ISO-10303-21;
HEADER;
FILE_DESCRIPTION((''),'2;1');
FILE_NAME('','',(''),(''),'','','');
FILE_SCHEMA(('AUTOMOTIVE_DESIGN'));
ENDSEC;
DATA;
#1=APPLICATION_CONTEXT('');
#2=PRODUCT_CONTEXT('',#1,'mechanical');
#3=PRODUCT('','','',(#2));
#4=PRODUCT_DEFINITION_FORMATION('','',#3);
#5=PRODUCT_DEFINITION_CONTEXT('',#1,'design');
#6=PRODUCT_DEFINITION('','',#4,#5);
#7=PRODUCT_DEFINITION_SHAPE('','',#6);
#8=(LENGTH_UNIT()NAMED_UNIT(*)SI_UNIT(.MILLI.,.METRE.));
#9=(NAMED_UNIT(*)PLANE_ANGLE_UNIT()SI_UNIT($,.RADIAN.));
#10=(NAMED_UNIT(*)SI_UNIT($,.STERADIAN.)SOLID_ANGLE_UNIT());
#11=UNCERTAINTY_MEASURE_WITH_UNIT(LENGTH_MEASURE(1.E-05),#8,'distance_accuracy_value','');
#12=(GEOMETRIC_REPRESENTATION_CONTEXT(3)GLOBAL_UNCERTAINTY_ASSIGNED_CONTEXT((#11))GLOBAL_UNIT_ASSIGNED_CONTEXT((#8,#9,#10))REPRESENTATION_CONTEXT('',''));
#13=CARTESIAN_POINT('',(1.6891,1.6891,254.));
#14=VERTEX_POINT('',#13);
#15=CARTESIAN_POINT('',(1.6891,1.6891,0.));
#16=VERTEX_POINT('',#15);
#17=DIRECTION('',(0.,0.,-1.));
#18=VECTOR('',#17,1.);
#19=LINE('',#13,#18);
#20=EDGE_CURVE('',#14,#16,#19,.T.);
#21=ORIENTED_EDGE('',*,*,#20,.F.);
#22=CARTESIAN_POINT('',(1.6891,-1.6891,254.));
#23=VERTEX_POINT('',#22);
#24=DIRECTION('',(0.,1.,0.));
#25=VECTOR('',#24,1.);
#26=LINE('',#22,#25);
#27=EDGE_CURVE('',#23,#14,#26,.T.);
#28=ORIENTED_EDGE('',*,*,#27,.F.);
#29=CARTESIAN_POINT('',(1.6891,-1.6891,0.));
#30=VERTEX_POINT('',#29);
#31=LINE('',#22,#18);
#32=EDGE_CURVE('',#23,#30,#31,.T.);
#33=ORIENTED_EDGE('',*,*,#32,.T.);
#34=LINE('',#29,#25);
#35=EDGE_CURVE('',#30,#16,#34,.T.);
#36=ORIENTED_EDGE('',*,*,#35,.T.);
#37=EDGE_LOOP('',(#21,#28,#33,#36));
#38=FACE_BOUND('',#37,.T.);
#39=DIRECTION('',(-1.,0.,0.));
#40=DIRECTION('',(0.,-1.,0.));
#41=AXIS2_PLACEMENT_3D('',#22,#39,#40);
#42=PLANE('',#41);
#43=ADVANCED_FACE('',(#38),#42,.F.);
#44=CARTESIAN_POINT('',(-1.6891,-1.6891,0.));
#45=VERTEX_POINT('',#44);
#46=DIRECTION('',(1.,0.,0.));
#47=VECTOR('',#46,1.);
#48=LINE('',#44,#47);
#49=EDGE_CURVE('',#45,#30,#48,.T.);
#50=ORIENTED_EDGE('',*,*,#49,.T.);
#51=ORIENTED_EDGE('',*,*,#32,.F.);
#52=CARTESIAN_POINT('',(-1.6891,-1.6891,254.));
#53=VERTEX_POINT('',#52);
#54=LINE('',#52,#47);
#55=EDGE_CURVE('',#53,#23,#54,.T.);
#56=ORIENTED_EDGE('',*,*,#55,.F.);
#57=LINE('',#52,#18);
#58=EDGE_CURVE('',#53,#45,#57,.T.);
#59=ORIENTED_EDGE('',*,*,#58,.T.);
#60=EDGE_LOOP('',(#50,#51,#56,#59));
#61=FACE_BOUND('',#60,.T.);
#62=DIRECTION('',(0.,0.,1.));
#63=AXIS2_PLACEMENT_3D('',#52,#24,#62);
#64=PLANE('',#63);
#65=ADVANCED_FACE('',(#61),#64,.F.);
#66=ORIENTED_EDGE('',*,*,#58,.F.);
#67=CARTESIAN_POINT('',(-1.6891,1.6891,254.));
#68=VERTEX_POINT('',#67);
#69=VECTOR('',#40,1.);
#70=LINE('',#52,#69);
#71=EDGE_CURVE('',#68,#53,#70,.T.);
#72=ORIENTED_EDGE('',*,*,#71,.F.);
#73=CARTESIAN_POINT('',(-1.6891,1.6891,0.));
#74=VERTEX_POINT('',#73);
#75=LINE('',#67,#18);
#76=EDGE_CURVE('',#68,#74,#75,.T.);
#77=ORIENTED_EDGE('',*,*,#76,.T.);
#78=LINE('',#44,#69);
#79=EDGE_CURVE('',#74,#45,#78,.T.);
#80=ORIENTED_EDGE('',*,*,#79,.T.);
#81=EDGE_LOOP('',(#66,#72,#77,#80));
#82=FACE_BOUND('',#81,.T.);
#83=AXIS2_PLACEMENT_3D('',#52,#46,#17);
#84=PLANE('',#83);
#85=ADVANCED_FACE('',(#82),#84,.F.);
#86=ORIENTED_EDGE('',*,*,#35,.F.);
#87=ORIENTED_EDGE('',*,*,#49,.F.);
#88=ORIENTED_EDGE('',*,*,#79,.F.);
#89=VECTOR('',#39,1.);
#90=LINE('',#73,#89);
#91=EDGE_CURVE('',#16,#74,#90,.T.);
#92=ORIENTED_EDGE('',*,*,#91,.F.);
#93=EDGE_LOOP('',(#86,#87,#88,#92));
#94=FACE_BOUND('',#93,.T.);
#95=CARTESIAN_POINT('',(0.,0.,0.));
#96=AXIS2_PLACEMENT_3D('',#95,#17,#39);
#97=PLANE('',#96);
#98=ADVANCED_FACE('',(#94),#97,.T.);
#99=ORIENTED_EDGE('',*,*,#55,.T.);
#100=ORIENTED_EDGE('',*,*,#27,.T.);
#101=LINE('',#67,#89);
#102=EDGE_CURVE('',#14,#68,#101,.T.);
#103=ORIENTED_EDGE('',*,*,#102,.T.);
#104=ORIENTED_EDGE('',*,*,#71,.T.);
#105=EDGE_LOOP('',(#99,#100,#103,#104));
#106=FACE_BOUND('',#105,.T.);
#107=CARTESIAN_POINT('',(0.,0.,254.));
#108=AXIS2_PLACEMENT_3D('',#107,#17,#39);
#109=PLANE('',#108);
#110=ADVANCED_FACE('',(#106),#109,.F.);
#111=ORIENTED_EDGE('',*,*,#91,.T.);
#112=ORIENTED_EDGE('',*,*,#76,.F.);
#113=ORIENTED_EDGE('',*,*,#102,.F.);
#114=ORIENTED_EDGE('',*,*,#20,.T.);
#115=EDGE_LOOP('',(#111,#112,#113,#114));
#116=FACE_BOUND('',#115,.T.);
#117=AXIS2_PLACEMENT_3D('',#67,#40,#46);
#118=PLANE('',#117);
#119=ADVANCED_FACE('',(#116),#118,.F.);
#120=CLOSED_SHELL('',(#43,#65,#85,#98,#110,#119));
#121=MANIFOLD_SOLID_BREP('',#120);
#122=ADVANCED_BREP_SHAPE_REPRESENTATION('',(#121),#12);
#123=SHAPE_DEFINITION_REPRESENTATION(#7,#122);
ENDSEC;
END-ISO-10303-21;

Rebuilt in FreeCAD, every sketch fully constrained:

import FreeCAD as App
import Part
import Sketcher
Q = App.Units.Quantity


def add_polygon(sketch, points):
    """Adds a closed chain of lines whose ends are joined by coincident constraints."""
    first, n = sketch.GeometryCount, len(points)
    for a, b in zip(points, points[1:] + points[:1]):
        sketch.addGeometry(Part.LineSegment(App.Vector(*a, 0), App.Vector(*b, 0)), False)
    for i in range(n):
        sketch.addConstraint(Sketcher.Constraint("Coincident", first + i, 2, first + (i + 1) % n, 1))

doc = App.newDocument("Part")
body = doc.addObject("PartDesign::Body", "Body")

# Sketch on XY plane
sketch1 = body.newObject("Sketcher::SketchObject", "Sketch")
sketch1.AttachmentSupport = (doc.getObject("XY_Plane"), [""])
sketch1.MapMode = "FlatFace"
add_polygon(sketch1, [(-1.7, 1.7), (-1.7, -1.7), (1.7, -1.7), (1.7, 1.7)])  # lines 0-3
sketch1.addConstraint([
    Sketcher.Constraint("Vertical", 0),
    Sketcher.Constraint("Horizontal", 1),
    Sketcher.Constraint("Vertical", 2),
    Sketcher.Constraint("Horizontal", 3),
    Sketcher.Constraint("Symmetric", 0, 2, 2, 2, -1, 1),
    Sketcher.Constraint("Equal", 3, 0),
    Sketcher.Constraint("DistanceX", 1, 1, 1, 2, Q("0.133 in")),
])
pad1 = body.newObject("PartDesign::Pad", "Pad")
pad1.Profile = sketch1
pad1.Length = Q("10 in")

doc.recompute()
